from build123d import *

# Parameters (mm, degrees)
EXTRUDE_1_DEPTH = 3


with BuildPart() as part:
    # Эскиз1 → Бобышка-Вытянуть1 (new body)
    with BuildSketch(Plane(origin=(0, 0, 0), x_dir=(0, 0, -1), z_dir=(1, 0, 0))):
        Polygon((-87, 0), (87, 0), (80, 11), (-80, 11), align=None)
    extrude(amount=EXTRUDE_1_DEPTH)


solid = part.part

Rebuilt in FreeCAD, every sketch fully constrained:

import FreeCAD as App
import Part
import Sketcher

V = App.Vector
Q = App.Units.Quantity

doc = App.newDocument("Part")
body = doc.addObject("PartDesign::Body", "Body")

# Sketch on YZ plane
sketch1 = body.newObject("Sketcher::SketchObject", "Sketch")
sketch1.AttachmentSupport = (doc.getObject("YZ_Plane"), [""])
sketch1.MapMode = "FlatFace"
sketch1.addGeometry([
    Part.LineSegment(V(0, 87, 0), V(0, -87, 0)),
    Part.LineSegment(V(0, -87, 0), V(11, -80, 0)),
    Part.LineSegment(V(11, -80, 0), V(11, 80, 0)),
    Part.LineSegment(V(11, 80, 0), V(0, 87, 0)),
], False)
sketch1.addConstraint([
    Sketcher.Constraint("Coincident", 0, 2, 1, 1),
    Sketcher.Constraint("Coincident", 1, 2, 2, 1),
    Sketcher.Constraint("Coincident", 2, 2, 3, 1),
    Sketcher.Constraint("Coincident", 3, 2, 0, 1),
    Sketcher.Constraint("Vertical", 0),
    Sketcher.Constraint("Vertical", 2),
    Sketcher.Constraint("Symmetric", 0, 2, 3, 2, -1, 1),
    Sketcher.Constraint("Equal", 1, 3),
    Sketcher.Constraint("DistanceY", 0, 2, 0, 1, Q("174 mm")),
    Sketcher.Constraint("DistanceY", 2, 1, 2, 2, Q("160 mm")),
    Sketcher.Constraint("DistanceX", -1, 1, 1, 2, Q("11 mm")),
])
pad1 = body.newObject("PartDesign::Pad", "Pad")
pad1.Profile = sketch1
pad1.Length = 3

doc.recompute()
